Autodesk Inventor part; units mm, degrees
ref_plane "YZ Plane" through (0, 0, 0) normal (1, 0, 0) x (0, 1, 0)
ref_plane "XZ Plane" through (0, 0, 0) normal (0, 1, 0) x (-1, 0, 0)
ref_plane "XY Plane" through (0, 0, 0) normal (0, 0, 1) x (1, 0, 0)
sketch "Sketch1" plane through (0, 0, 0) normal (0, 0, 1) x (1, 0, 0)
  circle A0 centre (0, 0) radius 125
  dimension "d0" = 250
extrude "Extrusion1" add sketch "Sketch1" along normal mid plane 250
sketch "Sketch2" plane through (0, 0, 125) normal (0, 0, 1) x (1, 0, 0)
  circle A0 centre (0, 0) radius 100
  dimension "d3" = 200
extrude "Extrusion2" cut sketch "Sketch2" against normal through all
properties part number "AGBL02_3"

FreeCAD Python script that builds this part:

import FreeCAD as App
import Part
import Sketcher
from FreeCAD import Vector
Q = App.Units.Quantity

doc = App.newDocument("Part")
body = doc.addObject("PartDesign::Body", "Body")

sketch1 = body.newObject("Sketcher::SketchObject", "Sketch")
sketch1.AttachmentSupport = (doc.getObject("XY_Plane"), [""])
sketch1.MapMode = "FlatFace"
sketch1.addGeometry(Part.Circle(Vector(0, 0, 0), Vector(0, 0, 1), 125), False)
sketch1.addConstraint(Sketcher.Constraint("Coincident", 0, 3, -1, 1))
sketch1.addConstraint(Sketcher.Constraint("Diameter", 0, Q("250 mm")))
pad1 = body.newObject("PartDesign::Pad", "Pad")
pad1.Profile = sketch1
pad1.Length = 250
pad1.Midplane = True

sketch2 = body.newObject("Sketcher::SketchObject", "Sketch001")
sketch2.AttachmentSupport = (doc.getObject("XY_Plane"), [""])
sketch2.MapMode = "FlatFace"
sketch2.AttachmentOffset = App.Placement(Vector(0, 0, 125), App.Rotation())
sketch2.addGeometry(Part.Circle(Vector(0, 0, 0), Vector(0, 0, 1), 100), False)
sketch2.addConstraint(Sketcher.Constraint("Coincident", 0, 3, -1, 1))
sketch2.addConstraint(Sketcher.Constraint("Diameter", 0, Q("200 mm")))
pocket1 = body.newObject("PartDesign::Pocket", "Pocket")
pocket1.Profile = sketch2
pocket1.Type = "ThroughAll"

doc.recompute()
